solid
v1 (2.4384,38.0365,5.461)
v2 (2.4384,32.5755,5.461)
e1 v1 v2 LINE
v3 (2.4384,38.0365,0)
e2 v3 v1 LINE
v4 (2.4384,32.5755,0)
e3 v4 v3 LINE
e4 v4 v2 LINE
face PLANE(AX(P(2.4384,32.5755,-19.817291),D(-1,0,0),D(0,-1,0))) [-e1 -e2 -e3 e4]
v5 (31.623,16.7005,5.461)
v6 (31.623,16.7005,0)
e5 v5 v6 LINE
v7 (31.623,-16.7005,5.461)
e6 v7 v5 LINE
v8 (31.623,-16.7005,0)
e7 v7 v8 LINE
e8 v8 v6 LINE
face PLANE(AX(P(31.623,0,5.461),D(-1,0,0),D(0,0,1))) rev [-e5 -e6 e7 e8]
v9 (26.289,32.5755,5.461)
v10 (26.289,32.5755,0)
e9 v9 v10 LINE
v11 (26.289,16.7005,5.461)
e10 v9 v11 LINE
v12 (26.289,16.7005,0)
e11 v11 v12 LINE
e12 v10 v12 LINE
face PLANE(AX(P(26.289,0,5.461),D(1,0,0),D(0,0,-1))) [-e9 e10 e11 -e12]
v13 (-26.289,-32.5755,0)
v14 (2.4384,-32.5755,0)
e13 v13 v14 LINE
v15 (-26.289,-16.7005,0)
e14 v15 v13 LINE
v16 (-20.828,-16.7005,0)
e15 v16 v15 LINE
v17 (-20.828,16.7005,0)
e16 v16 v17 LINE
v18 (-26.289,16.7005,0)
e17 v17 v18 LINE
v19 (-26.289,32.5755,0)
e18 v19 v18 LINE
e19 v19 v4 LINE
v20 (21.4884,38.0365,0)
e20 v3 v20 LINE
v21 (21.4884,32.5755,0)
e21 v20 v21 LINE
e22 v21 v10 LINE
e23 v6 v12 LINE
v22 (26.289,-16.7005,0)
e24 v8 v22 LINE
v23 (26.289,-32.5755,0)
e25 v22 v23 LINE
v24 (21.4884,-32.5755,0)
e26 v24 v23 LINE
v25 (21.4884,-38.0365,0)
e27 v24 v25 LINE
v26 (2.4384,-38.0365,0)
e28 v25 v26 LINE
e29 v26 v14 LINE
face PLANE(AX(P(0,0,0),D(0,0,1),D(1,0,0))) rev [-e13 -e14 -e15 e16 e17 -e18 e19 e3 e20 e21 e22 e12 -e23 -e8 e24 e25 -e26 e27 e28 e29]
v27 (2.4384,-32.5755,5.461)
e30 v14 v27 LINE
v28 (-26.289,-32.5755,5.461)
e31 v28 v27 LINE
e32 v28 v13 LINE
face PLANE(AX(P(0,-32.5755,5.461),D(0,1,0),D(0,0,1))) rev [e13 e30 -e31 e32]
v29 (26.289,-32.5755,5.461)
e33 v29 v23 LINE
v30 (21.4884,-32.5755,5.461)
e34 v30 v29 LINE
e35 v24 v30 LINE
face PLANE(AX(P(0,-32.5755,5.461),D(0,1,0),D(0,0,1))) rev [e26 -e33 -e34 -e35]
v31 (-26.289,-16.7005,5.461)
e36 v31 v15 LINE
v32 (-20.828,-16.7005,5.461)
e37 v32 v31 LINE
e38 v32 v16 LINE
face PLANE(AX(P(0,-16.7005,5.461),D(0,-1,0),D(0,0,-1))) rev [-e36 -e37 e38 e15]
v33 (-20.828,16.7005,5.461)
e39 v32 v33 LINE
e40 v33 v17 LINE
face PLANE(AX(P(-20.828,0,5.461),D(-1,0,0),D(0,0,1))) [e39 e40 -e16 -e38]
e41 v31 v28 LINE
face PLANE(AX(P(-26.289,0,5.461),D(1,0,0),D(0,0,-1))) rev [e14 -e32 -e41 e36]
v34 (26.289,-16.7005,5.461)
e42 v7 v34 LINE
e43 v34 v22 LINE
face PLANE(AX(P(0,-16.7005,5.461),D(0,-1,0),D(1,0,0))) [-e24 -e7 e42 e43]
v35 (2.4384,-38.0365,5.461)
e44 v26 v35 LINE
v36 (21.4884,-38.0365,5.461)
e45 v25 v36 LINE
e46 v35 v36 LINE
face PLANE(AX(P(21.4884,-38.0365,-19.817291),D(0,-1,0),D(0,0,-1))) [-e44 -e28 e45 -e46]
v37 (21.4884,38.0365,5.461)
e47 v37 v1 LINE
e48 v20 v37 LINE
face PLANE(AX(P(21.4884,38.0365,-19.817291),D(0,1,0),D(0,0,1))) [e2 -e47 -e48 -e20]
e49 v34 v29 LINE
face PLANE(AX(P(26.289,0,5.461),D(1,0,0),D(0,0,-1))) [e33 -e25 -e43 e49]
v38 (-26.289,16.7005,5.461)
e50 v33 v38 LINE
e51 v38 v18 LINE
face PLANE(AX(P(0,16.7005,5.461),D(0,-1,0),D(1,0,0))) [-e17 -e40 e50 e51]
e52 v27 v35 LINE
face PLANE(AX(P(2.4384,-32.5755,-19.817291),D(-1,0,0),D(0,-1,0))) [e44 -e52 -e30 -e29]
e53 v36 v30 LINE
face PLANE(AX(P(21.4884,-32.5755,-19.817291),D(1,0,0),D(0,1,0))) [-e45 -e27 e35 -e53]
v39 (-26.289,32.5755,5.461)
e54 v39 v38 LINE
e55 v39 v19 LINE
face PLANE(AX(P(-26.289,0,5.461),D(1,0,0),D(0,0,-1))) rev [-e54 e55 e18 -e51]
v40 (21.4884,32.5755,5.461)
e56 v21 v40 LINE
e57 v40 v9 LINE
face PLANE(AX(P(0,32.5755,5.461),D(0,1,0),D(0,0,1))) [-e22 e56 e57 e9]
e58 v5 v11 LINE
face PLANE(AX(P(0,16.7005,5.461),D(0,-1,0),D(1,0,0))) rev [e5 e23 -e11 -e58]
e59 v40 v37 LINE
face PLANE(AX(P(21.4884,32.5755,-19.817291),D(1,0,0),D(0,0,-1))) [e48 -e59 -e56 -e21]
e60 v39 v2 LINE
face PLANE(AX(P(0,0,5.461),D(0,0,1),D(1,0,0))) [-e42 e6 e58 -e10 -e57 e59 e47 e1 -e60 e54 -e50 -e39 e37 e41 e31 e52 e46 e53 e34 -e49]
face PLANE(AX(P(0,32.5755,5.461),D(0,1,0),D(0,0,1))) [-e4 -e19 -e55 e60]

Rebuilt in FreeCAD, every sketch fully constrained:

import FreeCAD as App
import Part
import Sketcher

V = App.Vector
Q = App.Units.Quantity

doc = App.newDocument("Part")
body = doc.addObject("PartDesign::Body", "Body")

sketch1 = doc.addObject("Sketcher::SketchObject", "Sketch")
body.addObject(sketch1)
sketch1.AttachmentSupport = (doc.XY_Plane, [""])
sketch1.MapMode = "FlatFace"
sketch1.addGeometry(Part.LineSegment(V(26, 33, 0), V(-26, 33, 0)), False)
sketch1.addGeometry(Part.LineSegment(V(-26, 33, 0), V(-26, 17, 0)), False)
sketch1.addGeometry(Part.LineSegment(V(-26, 17, 0), V(-21, 17, 0)), False)
sketch1.addGeometry(Part.LineSegment(V(-21, 17, 0), V(-21, -17, 0)), False)
sketch1.addGeometry(Part.LineSegment(V(-21, -17, 0), V(-26, -17, 0)), False)
sketch1.addGeometry(Part.LineSegment(V(-26, -17, 0), V(-26, -33, 0)), False)
sketch1.addGeometry(Part.LineSegment(V(-26, -33, 0), V(26, -33, 0)), False)
sketch1.addGeometry(Part.LineSegment(V(26, -33, 0), V(26, -17, 0)), False)
sketch1.addGeometry(Part.LineSegment(V(26, -17, 0), V(32, -17, 0)), False)
sketch1.addGeometry(Part.LineSegment(V(32, -17, 0), V(32, 17, 0)), False)
sketch1.addGeometry(Part.LineSegment(V(32, 17, 0), V(26, 17, 0)), False)
sketch1.addGeometry(Part.LineSegment(V(26, 17, 0), V(26, 33, 0)), False)
sketch1.addConstraint(Sketcher.Constraint("Coincident", 0, 2, 1, 1))
sketch1.addConstraint(Sketcher.Constraint("Coincident", 1, 2, 2, 1))
sketch1.addConstraint(Sketcher.Constraint("Coincident", 2, 2, 3, 1))
sketch1.addConstraint(Sketcher.Constraint("Coincident", 3, 2, 4, 1))
sketch1.addConstraint(Sketcher.Constraint("Coincident", 4, 2, 5, 1))
sketch1.addConstraint(Sketcher.Constraint("Coincident", 5, 2, 6, 1))
sketch1.addConstraint(Sketcher.Constraint("Coincident", 6, 2, 7, 1))
sketch1.addConstraint(Sketcher.Constraint("Coincident", 7, 2, 8, 1))
sketch1.addConstraint(Sketcher.Constraint("Coincident", 8, 2, 9, 1))
sketch1.addConstraint(Sketcher.Constraint("Coincident", 9, 2, 10, 1))
sketch1.addConstraint(Sketcher.Constraint("Coincident", 10, 2, 11, 1))
sketch1.addConstraint(Sketcher.Constraint("Coincident", 11, 2, 0, 1))
sketch1.addConstraint(Sketcher.Constraint("Horizontal", 0))
sketch1.addConstraint(Sketcher.Constraint("Vertical", 1))
sketch1.addConstraint(Sketcher.Constraint("Horizontal", 2))
sketch1.addConstraint(Sketcher.Constraint("Vertical", 3))
sketch1.addConstraint(Sketcher.Constraint("Horizontal", 4))
sketch1.addConstraint(Sketcher.Constraint("Vertical", 5))
sketch1.addConstraint(Sketcher.Constraint("Horizontal", 6))
sketch1.addConstraint(Sketcher.Constraint("Vertical", 7))
sketch1.addConstraint(Sketcher.Constraint("Horizontal", 8))
sketch1.addConstraint(Sketcher.Constraint("Vertical", 9))
sketch1.addConstraint(Sketcher.Constraint("Horizontal", 10))
sketch1.addConstraint(Sketcher.Constraint("Vertical", 11))
sketch1.addConstraint(Sketcher.Constraint("Symmetric", 0, 2, 6, 2, -1, 1))
sketch1.addConstraint(Sketcher.Constraint("Symmetric", 4, 2, 10, 2, -1, 1))
sketch1.addConstraint(Sketcher.Constraint("Symmetric", 4, 2, 7, 2, -2))
sketch1.addConstraint(Sketcher.Constraint("Horizontal", 2, 2, 9, 2))
sketch1.addConstraint(Sketcher.Constraint("DistanceX", 0, 2, 0, 1, Q("2.07 in")))
sketch1.addConstraint(Sketcher.Constraint("DistanceX", 8, 1, 8, 2, Q("0.21 in")))
sketch1.addConstraint(Sketcher.Constraint("DistanceX", 2, 1, 2, 2, Q("0.215 in")))
sketch1.addConstraint(Sketcher.Constraint("DistanceY", 1, 2, 1, 1, Q("0.625 in")))
sketch1.addConstraint(Sketcher.Constraint("DistanceY", 3, 2, 3, 1, Q("1.315 in")))
pad1 = doc.addObject("PartDesign::Pad", "Pad")
body.addObject(pad1)
pad1.Profile = sketch1
pad1.Length = Q("0.215 in")

sketch2 = doc.addObject("Sketcher::SketchObject", "Sketch001")
body.addObject(sketch2)
sketch2.AttachmentSupport = (doc.XY_Plane, [""])
sketch2.MapMode = "FlatFace"
sketch2.AttachmentOffset = App.Placement(V(0, 0, 0.215 * 25.4), App.Rotation())
sketch2.addGeometry(Part.LineSegment(V(2, 38, 0), V(2, 33, 0)), False)
sketch2.addGeometry(Part.LineSegment(V(2, 33, 0), V(21, 33, 0)), False)
sketch2.addGeometry(Part.LineSegment(V(21, 33, 0), V(21, 38, 0)), False)
sketch2.addGeometry(Part.LineSegment(V(21, 38, 0), V(2, 38, 0)), False)
sketch2.addGeometry(Part.LineSegment(V(2, -33, 0), V(2, -38, 0)), False)
sketch2.addGeometry(Part.LineSegment(V(2, -38, 0), V(21, -38, 0)), False)
sketch2.addGeometry(Part.LineSegment(V(21, -38, 0), V(21, -33, 0)), False)
sketch2.addGeometry(Part.LineSegment(V(21, -33, 0), V(2, -33, 0)), False)
sketch2.addConstraint(Sketcher.Constraint("Coincident", 0, 2, 1, 1))
sketch2.addConstraint(Sketcher.Constraint("Coincident", 1, 2, 2, 1))
sketch2.addConstraint(Sketcher.Constraint("Coincident", 2, 2, 3, 1))
sketch2.addConstraint(Sketcher.Constraint("Coincident", 3, 2, 0, 1))
sketch2.addConstraint(Sketcher.Constraint("Coincident", 4, 2, 5, 1))
sketch2.addConstraint(Sketcher.Constraint("Coincident", 5, 2, 6, 1))
sketch2.addConstraint(Sketcher.Constraint("Coincident", 6, 2, 7, 1))
sketch2.addConstraint(Sketcher.Constraint("Coincident", 7, 2, 4, 1))
sketch2.addConstraint(Sketcher.Constraint("Vertical", 0))
sketch2.addConstraint(Sketcher.Constraint("Horizontal", 1))
sketch2.addConstraint(Sketcher.Constraint("Vertical", 2))
sketch2.addConstraint(Sketcher.Constraint("Horizontal", 3))
sketch2.addConstraint(Sketcher.Constraint("Vertical", 4))
sketch2.addConstraint(Sketcher.Constraint("Horizontal", 5))
sketch2.addConstraint(Sketcher.Constraint("Vertical", 6))
sketch2.addConstraint(Sketcher.Constraint("Horizontal", 7))
sketch2.addConstraint(Sketcher.Constraint("Symmetric", 3, 2, 4, 2, -1))
sketch2.addConstraint(Sketcher.Constraint("Symmetric", 1, 2, 6, 2, -1))
sketch2.addConstraint(Sketcher.Constraint("DistanceX", 1, 1, 1, 2, Q("0.75 in")))
sketch2.addConstraint(Sketcher.Constraint("DistanceY", 0, 2, 0, 1, Q("0.215 in")))
sketch2.addConstraint(Sketcher.Constraint("DistanceY", 4, 2, 0, 2, Q("2.78 in")))
sketch2.addConstraint(Sketcher.Constraint("DistanceX", -1, 1, 0, 2, Q("0.096 in")))
pad2 = doc.addObject("PartDesign::Pad", "Pad001")
body.addObject(pad2)
pad2.Profile = sketch2
pad2.Length = Q("0.215 in")
pad2.Reversed = True

doc.recompute()
